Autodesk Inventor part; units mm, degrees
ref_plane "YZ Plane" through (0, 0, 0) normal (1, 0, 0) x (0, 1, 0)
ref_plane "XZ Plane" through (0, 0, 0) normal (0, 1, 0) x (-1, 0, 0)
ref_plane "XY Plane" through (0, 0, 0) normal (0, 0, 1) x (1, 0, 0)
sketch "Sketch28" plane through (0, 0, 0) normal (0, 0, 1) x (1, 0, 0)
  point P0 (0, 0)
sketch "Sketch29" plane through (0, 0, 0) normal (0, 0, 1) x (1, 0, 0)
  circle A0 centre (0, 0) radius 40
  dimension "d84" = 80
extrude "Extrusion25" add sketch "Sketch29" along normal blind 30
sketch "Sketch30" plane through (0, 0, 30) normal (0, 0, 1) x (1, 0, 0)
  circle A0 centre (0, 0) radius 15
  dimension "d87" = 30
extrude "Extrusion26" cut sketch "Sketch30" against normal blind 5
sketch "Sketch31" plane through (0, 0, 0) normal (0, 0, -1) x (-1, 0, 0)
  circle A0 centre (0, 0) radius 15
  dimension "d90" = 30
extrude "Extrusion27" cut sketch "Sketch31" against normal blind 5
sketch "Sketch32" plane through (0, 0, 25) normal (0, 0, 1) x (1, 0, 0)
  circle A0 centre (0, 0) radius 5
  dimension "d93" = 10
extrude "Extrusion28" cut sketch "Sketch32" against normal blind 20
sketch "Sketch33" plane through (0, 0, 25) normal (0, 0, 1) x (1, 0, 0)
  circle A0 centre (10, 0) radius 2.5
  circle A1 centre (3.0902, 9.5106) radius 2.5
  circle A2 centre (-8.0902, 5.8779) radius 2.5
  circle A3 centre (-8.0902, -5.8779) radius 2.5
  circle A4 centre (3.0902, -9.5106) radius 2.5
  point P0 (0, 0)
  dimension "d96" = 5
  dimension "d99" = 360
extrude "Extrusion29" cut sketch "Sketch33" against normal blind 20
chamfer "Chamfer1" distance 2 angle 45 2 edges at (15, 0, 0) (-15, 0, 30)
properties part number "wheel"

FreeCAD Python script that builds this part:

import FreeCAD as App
import Part
import Sketcher
from FreeCAD import Vector


def edges_at(feature, points):
    """Names of the edges that pass closest to the given points."""
    edges = feature.Shape.Edges
    near = lambda p: min(range(len(edges)), key=lambda i: edges[i].distToShape(Part.Vertex(*p))[0])
    return sorted({f"Edge{near(p) + 1}" for p in points})

doc = App.newDocument("Part")
params = doc.addObject("Spreadsheet::Sheet", "Params")
for row, (alias, value) in enumerate([
    ("sketch1_diameter", "80 mm"),
    ("pad1_length", "30 mm"),
    ("sketch2_diameter", "30 mm"),
    ("pocket1_length", "5 mm"),
    ("sketch3_diameter", "30 mm"),
    ("pocket2_length", "5 mm"),
    ("sketch4_diameter", "10 mm"),
    ("pocket3_length", "20 mm"),
    ("sketch5_diameter", "5 mm"),
    ("pocket4_length", "20 mm"),
    ("chamfer_size", "2 mm"),
], start=1):
    params.set(f"A{row}", alias)
    params.set(f"B{row}", "=" + value)
    params.setAlias(f"B{row}", alias)

body = doc.addObject("PartDesign::Body", "Body")

# Sketch on XY plane
sketch1 = body.newObject("Sketcher::SketchObject", "Sketch")
sketch1.AttachmentSupport = (doc.getObject("XY_Plane"), [""])
sketch1.MapMode = "FlatFace"
sketch1.addGeometry(Part.Circle(Vector(0, 0, 0), Vector(0, 0, 1), 40), False)
sketch1.addConstraint([
    Sketcher.Constraint("Coincident", 0, 3, -1, 1),
    Sketcher.Constraint("Diameter", 0, 80.0),
])
sketch1.setExpression("Constraints[1]", "Params.sketch1_diameter")
pad1 = body.newObject("PartDesign::Pad", "Pad")
pad1.Profile = sketch1
pad1.setExpression("Length", "Params.pad1_length")

# Sketch on XY plane
sketch2 = body.newObject("Sketcher::SketchObject", "Sketch001")
sketch2.AttachmentSupport = (doc.getObject("XY_Plane"), [""])
sketch2.MapMode = "FlatFace"
sketch2.AttachmentOffset = App.Placement(Vector(0, 0, 30), App.Rotation())
sketch2.addGeometry(Part.Circle(Vector(0, 0, 0), Vector(0, 0, 1), 15), False)
sketch2.addConstraint([
    Sketcher.Constraint("Coincident", 0, 3, -1, 1),
    Sketcher.Constraint("Diameter", 0, 30.0),
])
sketch2.setExpression("Constraints[1]", "Params.sketch2_diameter")
pocket1 = body.newObject("PartDesign::Pocket", "Pocket")
pocket1.Profile = sketch2
pocket1.setExpression("Length", "Params.pocket1_length")

# Sketch on XY plane
sketch3 = body.newObject("Sketcher::SketchObject", "Sketch002")
sketch3.AttachmentSupport = (doc.getObject("XY_Plane"), [""])
sketch3.MapMode = "FlatFace"
sketch3.addGeometry(Part.Circle(Vector(0, 0, 0), Vector(0, 0, 1), 15), False)
sketch3.addConstraint([
    Sketcher.Constraint("Coincident", 0, 3, -1, 1),
    Sketcher.Constraint("Diameter", 0, 30.0),
])
sketch3.setExpression("Constraints[1]", "Params.sketch3_diameter")
pocket2 = body.newObject("PartDesign::Pocket", "Pocket001")
pocket2.Profile = sketch3
pocket2.setExpression("Length", "Params.pocket2_length")
pocket2.Reversed = True

# Sketch on XY plane
sketch4 = body.newObject("Sketcher::SketchObject", "Sketch003")
sketch4.AttachmentSupport = (doc.getObject("XY_Plane"), [""])
sketch4.MapMode = "FlatFace"
sketch4.AttachmentOffset = App.Placement(Vector(0, 0, 25), App.Rotation())
sketch4.addGeometry(Part.Circle(Vector(0, 0, 0), Vector(0, 0, 1), 5), False)
sketch4.addConstraint([
    Sketcher.Constraint("Coincident", 0, 3, -1, 1),
    Sketcher.Constraint("Diameter", 0, 10.0),
])
sketch4.setExpression("Constraints[1]", "Params.sketch4_diameter")
pocket3 = body.newObject("PartDesign::Pocket", "Pocket002")
pocket3.Profile = sketch4
pocket3.setExpression("Length", "Params.pocket3_length")

# Sketch on XY plane
sketch5 = body.newObject("Sketcher::SketchObject", "Sketch004")
sketch5.AttachmentSupport = (doc.getObject("XY_Plane"), [""])
sketch5.MapMode = "FlatFace"
sketch5.AttachmentOffset = App.Placement(Vector(0, 0, 25), App.Rotation())
sketch5.addGeometry([
    Part.Circle(Vector(10, 0, 0), Vector(0, 0, 1), 2.5),  # 0
    Part.Circle(Vector(3.1, 9.5, 0), Vector(0, 0, 1), 2.5),  # 1
    Part.Circle(Vector(-8.1, 5.9, 0), Vector(0, 0, 1), 2.5),  # 2
    Part.Circle(Vector(-8.1, -5.9, 0), Vector(0, 0, 1), 2.5),  # 3
    Part.Circle(Vector(3.1, -9.5, 0), Vector(0, 0, 1), 2.5),  # 4
], False)
sketch5.addConstraint([
    Sketcher.Constraint("Equal", 0, 1),
    Sketcher.Constraint("Equal", 1, 2),
    Sketcher.Constraint("Equal", 2, 3),
    Sketcher.Constraint("Equal", 3, 4),
    Sketcher.Constraint("Symmetric", 2, 3, 3, 3, -1),
    Sketcher.Constraint("Symmetric", 1, 3, 4, 3, -1),
    Sketcher.Constraint("PointOnObject", 0, 3, -1),
    Sketcher.Constraint("Diameter", 0, 5.0),
    Sketcher.Constraint("DistanceX", -1, 1, 0, 3, 10.0),
    Sketcher.Constraint("DistanceY", -1, 1, 2, 3, 5.878),
    Sketcher.Constraint("DistanceX", -1, 1, 1, 3, 3.0902),
    Sketcher.Constraint("DistanceY", -1, 1, 1, 3, 9.5106),
    Sketcher.Constraint("DistanceX", 2, 3, -1, 1, 8.0902),
])
sketch5.setExpression("Constraints[7]", "Params.sketch5_diameter")
pocket4 = body.newObject("PartDesign::Pocket", "Pocket003")
pocket4.Profile = sketch5
pocket4.setExpression("Length", "Params.pocket4_length")
doc.recompute()

chamfer = body.newObject("PartDesign::Chamfer", "Chamfer")
chamfer.Base = (pocket4, edges_at(pocket4, [(15, 0, 0), (-15, 0, 30)]))
chamfer.setExpression("Size", "Params.chamfer_size")

doc.recompute()
